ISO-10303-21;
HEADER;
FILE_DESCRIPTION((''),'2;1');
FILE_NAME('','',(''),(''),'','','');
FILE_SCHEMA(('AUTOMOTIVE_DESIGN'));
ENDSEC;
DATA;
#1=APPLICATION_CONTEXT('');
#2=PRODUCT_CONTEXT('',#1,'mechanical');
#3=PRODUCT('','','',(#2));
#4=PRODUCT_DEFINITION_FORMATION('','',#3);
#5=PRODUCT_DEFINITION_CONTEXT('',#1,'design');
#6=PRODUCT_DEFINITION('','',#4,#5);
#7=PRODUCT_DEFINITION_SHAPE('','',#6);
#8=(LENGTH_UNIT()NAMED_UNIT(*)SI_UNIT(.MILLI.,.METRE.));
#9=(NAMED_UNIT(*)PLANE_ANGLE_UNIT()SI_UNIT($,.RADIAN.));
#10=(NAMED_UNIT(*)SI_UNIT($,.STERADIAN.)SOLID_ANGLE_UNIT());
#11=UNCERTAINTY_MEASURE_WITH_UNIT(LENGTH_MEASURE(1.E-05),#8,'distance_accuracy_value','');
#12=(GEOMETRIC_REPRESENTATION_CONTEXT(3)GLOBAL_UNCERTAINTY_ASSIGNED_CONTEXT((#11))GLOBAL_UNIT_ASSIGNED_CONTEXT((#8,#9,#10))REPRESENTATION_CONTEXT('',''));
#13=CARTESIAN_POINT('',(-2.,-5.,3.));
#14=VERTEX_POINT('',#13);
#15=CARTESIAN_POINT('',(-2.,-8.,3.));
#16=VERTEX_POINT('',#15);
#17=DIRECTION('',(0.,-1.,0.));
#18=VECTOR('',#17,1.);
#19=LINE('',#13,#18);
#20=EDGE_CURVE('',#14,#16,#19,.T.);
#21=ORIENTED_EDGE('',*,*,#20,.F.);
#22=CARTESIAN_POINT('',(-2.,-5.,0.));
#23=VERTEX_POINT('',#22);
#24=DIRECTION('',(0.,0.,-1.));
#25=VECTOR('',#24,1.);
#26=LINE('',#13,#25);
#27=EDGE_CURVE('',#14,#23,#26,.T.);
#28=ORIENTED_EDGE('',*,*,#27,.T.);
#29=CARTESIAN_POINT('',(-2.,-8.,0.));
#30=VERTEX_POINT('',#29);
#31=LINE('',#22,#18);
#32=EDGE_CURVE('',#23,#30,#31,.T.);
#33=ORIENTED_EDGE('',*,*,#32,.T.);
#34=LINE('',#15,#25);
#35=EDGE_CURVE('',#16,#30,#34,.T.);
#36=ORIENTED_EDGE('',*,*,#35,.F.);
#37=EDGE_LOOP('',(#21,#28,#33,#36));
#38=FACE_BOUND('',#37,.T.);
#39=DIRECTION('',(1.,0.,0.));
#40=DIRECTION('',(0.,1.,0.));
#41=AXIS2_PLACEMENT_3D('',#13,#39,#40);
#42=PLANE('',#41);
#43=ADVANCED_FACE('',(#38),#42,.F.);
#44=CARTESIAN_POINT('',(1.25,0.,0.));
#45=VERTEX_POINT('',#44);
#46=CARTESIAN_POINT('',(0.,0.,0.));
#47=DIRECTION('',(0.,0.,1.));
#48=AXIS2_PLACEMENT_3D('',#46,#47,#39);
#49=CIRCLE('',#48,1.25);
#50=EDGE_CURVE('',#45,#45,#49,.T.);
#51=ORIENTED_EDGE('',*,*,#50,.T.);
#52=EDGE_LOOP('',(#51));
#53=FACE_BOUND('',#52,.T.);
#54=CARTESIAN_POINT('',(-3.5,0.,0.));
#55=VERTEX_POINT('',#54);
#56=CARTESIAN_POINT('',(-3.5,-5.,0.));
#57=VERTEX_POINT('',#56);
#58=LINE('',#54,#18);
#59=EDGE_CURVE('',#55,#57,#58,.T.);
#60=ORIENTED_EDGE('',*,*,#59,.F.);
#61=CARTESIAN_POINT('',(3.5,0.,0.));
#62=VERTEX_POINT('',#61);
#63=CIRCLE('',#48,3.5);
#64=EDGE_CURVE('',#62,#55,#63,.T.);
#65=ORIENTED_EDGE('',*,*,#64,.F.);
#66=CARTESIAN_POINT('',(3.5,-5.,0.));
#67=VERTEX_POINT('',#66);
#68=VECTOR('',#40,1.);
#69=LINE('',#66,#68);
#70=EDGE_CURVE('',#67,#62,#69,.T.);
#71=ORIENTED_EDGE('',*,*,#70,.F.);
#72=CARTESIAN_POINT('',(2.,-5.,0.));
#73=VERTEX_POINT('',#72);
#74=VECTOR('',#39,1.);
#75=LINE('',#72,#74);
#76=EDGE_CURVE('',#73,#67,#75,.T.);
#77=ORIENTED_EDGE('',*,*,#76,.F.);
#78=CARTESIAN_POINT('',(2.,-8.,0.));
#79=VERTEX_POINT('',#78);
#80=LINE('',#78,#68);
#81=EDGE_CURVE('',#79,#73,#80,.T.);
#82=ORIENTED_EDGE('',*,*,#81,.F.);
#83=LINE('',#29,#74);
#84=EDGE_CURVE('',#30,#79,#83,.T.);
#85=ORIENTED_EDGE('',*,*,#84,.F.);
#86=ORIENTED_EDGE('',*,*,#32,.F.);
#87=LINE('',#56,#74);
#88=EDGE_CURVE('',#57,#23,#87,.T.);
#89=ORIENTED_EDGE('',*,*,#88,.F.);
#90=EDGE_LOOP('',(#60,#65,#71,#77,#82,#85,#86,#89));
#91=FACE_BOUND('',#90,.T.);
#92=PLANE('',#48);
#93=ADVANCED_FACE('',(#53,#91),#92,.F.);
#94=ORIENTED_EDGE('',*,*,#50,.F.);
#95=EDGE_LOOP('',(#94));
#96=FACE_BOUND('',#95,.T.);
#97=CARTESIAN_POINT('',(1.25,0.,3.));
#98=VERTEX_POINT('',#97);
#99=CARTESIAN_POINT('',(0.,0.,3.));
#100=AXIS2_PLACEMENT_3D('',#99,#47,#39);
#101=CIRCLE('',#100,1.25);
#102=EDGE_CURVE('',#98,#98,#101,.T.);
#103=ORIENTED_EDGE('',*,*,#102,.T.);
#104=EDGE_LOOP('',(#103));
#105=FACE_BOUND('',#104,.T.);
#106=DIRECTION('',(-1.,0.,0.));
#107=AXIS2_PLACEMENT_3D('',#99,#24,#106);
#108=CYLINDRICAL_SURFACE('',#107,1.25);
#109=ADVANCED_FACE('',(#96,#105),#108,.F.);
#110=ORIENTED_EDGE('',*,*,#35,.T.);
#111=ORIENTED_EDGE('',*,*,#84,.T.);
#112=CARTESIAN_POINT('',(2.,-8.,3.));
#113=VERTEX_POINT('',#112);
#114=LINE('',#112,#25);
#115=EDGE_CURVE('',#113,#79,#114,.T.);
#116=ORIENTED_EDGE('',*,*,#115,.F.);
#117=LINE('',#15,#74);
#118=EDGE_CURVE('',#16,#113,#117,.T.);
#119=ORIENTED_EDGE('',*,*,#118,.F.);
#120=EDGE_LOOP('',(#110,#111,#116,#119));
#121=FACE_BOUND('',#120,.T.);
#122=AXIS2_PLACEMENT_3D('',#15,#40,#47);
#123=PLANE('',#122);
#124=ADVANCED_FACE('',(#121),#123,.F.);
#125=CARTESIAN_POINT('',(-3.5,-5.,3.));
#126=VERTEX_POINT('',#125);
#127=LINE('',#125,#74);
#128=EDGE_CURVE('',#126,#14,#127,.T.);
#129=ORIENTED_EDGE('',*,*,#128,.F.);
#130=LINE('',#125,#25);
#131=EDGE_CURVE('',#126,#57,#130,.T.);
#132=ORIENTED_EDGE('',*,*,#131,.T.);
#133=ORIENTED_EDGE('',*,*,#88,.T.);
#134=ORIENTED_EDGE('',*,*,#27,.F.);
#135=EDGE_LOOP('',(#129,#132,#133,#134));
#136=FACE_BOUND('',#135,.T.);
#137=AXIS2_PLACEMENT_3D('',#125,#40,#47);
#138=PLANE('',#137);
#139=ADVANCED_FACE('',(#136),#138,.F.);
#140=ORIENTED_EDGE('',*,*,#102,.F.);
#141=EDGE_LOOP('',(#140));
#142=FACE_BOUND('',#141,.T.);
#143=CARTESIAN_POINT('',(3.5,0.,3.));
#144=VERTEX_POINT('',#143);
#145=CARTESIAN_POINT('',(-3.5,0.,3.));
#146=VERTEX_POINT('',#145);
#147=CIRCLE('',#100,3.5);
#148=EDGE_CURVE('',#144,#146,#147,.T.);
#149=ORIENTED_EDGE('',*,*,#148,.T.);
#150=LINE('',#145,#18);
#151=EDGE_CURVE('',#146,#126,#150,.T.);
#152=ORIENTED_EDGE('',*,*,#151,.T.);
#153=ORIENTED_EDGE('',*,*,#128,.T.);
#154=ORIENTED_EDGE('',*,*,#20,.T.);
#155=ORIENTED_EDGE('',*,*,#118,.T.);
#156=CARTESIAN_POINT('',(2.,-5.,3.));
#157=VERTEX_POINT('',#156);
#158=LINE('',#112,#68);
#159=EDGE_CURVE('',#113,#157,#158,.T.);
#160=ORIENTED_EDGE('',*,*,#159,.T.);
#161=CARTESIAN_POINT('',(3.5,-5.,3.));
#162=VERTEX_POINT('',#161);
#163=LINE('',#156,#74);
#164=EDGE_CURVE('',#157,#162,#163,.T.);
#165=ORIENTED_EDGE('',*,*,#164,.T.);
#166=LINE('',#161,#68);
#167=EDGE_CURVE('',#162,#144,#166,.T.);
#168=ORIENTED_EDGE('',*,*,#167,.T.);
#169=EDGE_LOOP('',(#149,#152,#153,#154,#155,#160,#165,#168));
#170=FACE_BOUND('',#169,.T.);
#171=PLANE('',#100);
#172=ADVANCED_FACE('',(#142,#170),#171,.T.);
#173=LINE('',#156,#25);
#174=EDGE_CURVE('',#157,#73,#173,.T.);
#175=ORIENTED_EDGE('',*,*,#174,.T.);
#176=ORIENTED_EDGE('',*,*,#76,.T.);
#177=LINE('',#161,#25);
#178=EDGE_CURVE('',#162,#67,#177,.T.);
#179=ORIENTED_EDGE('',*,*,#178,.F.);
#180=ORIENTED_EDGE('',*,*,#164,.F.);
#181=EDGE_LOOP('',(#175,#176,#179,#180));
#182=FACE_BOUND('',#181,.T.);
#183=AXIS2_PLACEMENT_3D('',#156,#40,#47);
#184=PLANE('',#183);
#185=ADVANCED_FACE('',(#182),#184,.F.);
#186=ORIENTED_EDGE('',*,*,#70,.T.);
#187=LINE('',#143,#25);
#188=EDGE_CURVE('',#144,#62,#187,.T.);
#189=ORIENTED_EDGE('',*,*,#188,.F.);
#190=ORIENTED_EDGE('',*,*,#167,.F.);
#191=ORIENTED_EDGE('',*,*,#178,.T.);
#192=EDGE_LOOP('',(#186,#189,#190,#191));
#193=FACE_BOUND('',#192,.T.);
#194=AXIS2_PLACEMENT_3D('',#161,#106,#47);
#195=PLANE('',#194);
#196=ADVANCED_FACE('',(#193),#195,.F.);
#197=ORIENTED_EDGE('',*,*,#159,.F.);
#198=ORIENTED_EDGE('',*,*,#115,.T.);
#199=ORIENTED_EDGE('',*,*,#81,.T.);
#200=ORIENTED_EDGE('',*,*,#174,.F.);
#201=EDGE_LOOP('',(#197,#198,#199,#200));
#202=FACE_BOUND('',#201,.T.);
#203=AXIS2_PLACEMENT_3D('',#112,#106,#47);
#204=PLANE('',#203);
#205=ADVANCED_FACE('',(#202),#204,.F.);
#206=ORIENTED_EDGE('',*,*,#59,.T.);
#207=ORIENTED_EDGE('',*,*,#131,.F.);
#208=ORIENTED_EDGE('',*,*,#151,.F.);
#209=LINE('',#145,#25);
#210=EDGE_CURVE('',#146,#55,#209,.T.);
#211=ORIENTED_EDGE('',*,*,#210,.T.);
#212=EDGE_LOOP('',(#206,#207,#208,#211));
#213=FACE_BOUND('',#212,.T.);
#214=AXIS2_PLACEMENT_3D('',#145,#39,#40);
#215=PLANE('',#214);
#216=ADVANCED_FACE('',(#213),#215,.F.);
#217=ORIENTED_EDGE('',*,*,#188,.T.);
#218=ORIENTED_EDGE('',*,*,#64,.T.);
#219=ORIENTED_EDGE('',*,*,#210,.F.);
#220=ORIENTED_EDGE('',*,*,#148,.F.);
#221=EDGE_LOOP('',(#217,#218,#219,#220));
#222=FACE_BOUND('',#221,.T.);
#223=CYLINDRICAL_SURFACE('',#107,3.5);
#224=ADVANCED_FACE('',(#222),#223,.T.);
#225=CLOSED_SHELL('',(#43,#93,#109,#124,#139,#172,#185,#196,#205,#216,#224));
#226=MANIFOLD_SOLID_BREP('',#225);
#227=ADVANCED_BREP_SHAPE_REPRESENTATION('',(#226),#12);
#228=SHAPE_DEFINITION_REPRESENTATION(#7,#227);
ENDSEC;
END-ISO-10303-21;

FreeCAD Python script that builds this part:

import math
import FreeCAD as App
import Part
import Sketcher
Q = App.Units.Quantity

doc = App.newDocument("Part")
body = doc.addObject("PartDesign::Body", "Body")

# Sketch on XY plane
sketch1 = body.newObject("Sketcher::SketchObject", "Sketch")
sketch1.AttachmentSupport = (doc.getObject("XY_Plane"), [""])
sketch1.MapMode = "FlatFace"
sketch1.addGeometry([
    Part.LineSegment(App.Vector(-3.5, 0, 0), App.Vector(-3.5, -5, 0)),  # 0
    Part.LineSegment(App.Vector(-3.5, -5, 0), App.Vector(-2, -5, 0)),  # 1
    Part.LineSegment(App.Vector(-2, -5, 0), App.Vector(-2, -8, 0)),  # 2
    Part.LineSegment(App.Vector(-2, -8, 0), App.Vector(2, -8, 0)),  # 3
    Part.LineSegment(App.Vector(2, -8, 0), App.Vector(2, -5, 0)),  # 4
    Part.LineSegment(App.Vector(2, -5, 0), App.Vector(3.5, -5, 0)),  # 5
    Part.LineSegment(App.Vector(3.5, -5, 0), App.Vector(3.5, 0, 0)),  # 6
    Part.ArcOfCircle(Part.Circle(App.Vector(0, 0, 0), App.Vector(0, 0, 1), 3.5), math.radians(0), math.radians(180)),  # 7
    Part.Circle(App.Vector(0, 0, 0), App.Vector(0, 0, 1), 1.2),  # 8
], False)
sketch1.addConstraint([
    Sketcher.Constraint("Coincident", 0, 2, 1, 1),
    Sketcher.Constraint("Coincident", 1, 2, 2, 1),
    Sketcher.Constraint("Coincident", 2, 2, 3, 1),
    Sketcher.Constraint("Coincident", 3, 2, 4, 1),
    Sketcher.Constraint("Coincident", 4, 2, 5, 1),
    Sketcher.Constraint("Coincident", 5, 2, 6, 1),
    Sketcher.Constraint("Tangent", 6, 2, 7, 1),
    Sketcher.Constraint("Tangent", 7, 2, 0, 1),
    Sketcher.Constraint("Vertical", 0),
    Sketcher.Constraint("Horizontal", 1),
    Sketcher.Constraint("Vertical", 2),
    Sketcher.Constraint("Horizontal", 3),
    Sketcher.Constraint("Vertical", 4),
    Sketcher.Constraint("Horizontal", 5),
    Sketcher.Constraint("Vertical", 6),
    Sketcher.Constraint("Coincident", 7, 3, -1, 1),
    Sketcher.Constraint("Coincident", 8, 3, -1, 1),
    Sketcher.Constraint("Symmetric", 1, 2, 4, 2, -2),
    Sketcher.Constraint("Diameter", 8, Q("2.5 mm")),
    Sketcher.Constraint("Radius", 7, Q("3.5 mm")),
    Sketcher.Constraint("DistanceX", 3, 1, 3, 2, Q("4 mm")),
    Sketcher.Constraint("DistanceY", 0, 2, 0, 1, Q("5 mm")),
    Sketcher.Constraint("DistanceY", 2, 2, 2, 1, Q("3 mm")),
])
pad1 = body.newObject("PartDesign::Pad", "Pad")
pad1.Profile = sketch1
pad1.Length = 3

doc.recompute()
